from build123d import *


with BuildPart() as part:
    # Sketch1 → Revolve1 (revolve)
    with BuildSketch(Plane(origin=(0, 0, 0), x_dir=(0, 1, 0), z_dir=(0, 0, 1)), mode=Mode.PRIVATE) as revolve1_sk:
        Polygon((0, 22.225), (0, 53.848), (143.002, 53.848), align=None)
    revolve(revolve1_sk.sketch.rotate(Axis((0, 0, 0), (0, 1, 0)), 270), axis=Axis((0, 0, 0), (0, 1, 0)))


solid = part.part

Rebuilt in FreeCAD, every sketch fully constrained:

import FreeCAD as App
import Part
import Sketcher
Q = App.Units.Quantity


def add_polygon(sketch, points):
    """Adds a closed chain of lines whose ends are joined by coincident constraints."""
    first, n = sketch.GeometryCount, len(points)
    for a, b in zip(points, points[1:] + points[:1]):
        sketch.addGeometry(Part.LineSegment(App.Vector(*a, 0), App.Vector(*b, 0)), False)
    for i in range(n):
        sketch.addConstraint(Sketcher.Constraint("Coincident", first + i, 2, first + (i + 1) % n, 1))

doc = App.newDocument("Part")
body = doc.addObject("PartDesign::Body", "Body")

sketch1 = body.newObject("Sketcher::SketchObject", "Sketch")
sketch1.AttachmentSupport = (doc.getObject("XY_Plane"), [""])
sketch1.MapMode = "FlatFace"
add_polygon(sketch1, [(-53.848, 0), (-22.225, 0), (-53.848, 143.002)])
sketch1.addConstraint(Sketcher.Constraint("Horizontal", 0))
sketch1.addConstraint(Sketcher.Constraint("Vertical", 2))
sketch1.addConstraint(Sketcher.Constraint("PointOnObject", 0, 2, -1))
sketch1.addConstraint(Sketcher.Constraint("DistanceY", 2, 2, 2, 1, Q("5.63 in")))
sketch1.addConstraint(Sketcher.Constraint("DistanceX", 0, 1, 0, 2, Q("1.245 in")))
sketch1.addConstraint(Sketcher.Constraint("DistanceX", 1, 2, -1, 1, Q("2.12 in")))
revolution = body.newObject("PartDesign::Revolution", "Revolution")
revolution.Profile = sketch1
revolution.ReferenceAxis = (sketch1, ["V_Axis"])
revolution.Angle = 360

doc.recompute()
